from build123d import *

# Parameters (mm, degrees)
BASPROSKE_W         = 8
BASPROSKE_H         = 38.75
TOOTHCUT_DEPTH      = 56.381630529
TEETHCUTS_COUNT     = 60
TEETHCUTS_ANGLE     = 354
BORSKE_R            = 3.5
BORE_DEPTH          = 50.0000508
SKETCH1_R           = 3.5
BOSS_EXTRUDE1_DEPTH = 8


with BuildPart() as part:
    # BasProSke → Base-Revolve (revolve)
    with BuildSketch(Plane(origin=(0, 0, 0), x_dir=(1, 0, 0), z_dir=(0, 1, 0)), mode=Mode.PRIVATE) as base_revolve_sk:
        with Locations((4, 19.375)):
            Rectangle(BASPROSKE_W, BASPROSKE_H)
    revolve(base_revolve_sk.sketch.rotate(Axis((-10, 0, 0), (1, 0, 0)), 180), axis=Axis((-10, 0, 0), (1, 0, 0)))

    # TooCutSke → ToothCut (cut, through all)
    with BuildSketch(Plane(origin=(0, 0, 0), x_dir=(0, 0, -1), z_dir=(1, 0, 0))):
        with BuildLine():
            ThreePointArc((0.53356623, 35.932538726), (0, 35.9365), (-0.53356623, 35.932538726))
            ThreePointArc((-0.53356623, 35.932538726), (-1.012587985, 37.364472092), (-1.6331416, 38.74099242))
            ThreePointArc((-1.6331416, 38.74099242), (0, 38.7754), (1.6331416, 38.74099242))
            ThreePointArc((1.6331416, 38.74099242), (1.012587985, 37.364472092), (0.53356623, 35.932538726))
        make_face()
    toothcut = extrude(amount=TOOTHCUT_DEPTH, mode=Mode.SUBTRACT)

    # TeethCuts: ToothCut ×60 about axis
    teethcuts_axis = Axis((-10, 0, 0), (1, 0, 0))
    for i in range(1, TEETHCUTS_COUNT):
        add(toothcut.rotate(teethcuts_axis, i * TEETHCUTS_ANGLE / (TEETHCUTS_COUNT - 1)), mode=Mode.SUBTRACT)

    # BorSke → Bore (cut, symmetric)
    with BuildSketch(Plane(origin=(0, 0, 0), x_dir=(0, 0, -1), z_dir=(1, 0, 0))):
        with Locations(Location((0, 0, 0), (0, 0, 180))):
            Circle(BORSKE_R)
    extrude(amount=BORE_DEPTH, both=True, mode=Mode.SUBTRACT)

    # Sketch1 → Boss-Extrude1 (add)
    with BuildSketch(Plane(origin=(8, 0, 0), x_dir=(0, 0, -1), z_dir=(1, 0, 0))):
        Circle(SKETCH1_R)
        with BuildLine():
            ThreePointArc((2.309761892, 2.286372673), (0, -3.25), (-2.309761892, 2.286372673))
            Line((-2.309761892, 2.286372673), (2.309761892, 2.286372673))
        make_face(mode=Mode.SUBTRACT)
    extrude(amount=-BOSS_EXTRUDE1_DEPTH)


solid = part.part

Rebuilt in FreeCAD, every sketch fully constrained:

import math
import FreeCAD as App
import Part
import Sketcher

V = App.Vector
Q = App.Units.Quantity

doc = App.newDocument("Part")
body = doc.addObject("PartDesign::Body", "Body")

# Sketch on XZ plane
sketch1 = doc.addObject("Sketcher::SketchObject", "Sketch")
body.addObject(sketch1)
sketch1.AttachmentSupport = (doc.XZ_Plane, [""])
sketch1.MapMode = "FlatFace"
sketch1.addGeometry(Part.LineSegment(V(0, -39, 0), V(0, 0, 0)), False)
sketch1.addGeometry(Part.LineSegment(V(0, 0, 0), V(8, 0, 0)), False)
sketch1.addGeometry(Part.LineSegment(V(8, 0, 0), V(8, -39, 0)), False)
sketch1.addGeometry(Part.LineSegment(V(8, -39, 0), V(0, -39, 0)), False)
sketch1.addConstraint(Sketcher.Constraint("Coincident", 0, 2, 1, 1))
sketch1.addConstraint(Sketcher.Constraint("Coincident", 1, 2, 2, 1))
sketch1.addConstraint(Sketcher.Constraint("Coincident", 2, 2, 3, 1))
sketch1.addConstraint(Sketcher.Constraint("Coincident", 3, 2, 0, 1))
sketch1.addConstraint(Sketcher.Constraint("Vertical", 0))
sketch1.addConstraint(Sketcher.Constraint("Horizontal", 1))
sketch1.addConstraint(Sketcher.Constraint("Vertical", 2))
sketch1.addConstraint(Sketcher.Constraint("Horizontal", 3))
sketch1.addConstraint(Sketcher.Constraint("Coincident", 0, 2, -1, 1))
sketch1.addConstraint(Sketcher.Constraint("DistanceX", 1, 1, 1, 2, Q("8 mm")))
sketch1.addConstraint(Sketcher.Constraint("DistanceY", 0, 1, 0, 2, Q("38.75 mm")))
revolution = doc.addObject("PartDesign::Revolution", "Revolution")
body.addObject(revolution)
revolution.Profile = sketch1
revolution.ReferenceAxis = (sketch1, ["H_Axis"])
revolution.Angle = 360

# Sketch on YZ plane
sketch2 = doc.addObject("Sketcher::SketchObject", "Sketch001")
body.addObject(sketch2)
sketch2.AttachmentSupport = (doc.YZ_Plane, [""])
sketch2.MapMode = "FlatFace"
sketch2.addGeometry(Part.ArcOfCircle(Part.Circle(V(0, 0, 0), V(0, 0, 1), 35.9), math.radians(-0.85), math.radians(0.85)), False)
sketch2.addGeometry(Part.ArcOfCircle(Part.Circle(V(31.9, -15, 0), V(0, 0, 1), 15), math.radians(62.85), math.radians(74.39)), False)
sketch2.addGeometry(Part.ArcOfCircle(Part.Circle(V(0, 0, 0), V(0, 0, 1), 38.8), math.radians(-2.41), math.radians(2.41)), False)
sketch2.addGeometry(Part.ArcOfCircle(Part.Circle(V(31.9, 15, 0), V(0, 0, 1), 15), math.radians(-74.39), math.radians(-62.85)), False)
sketch2.addConstraint(Sketcher.Constraint("Coincident", 0, 1, 1, 2))
sketch2.addConstraint(Sketcher.Constraint("Coincident", 1, 1, 2, 1))
sketch2.addConstraint(Sketcher.Constraint("Coincident", 2, 2, 3, 2))
sketch2.addConstraint(Sketcher.Constraint("Coincident", 3, 1, 0, 2))
sketch2.addConstraint(Sketcher.Constraint("Coincident", 0, 3, -1, 1))
sketch2.addConstraint(Sketcher.Constraint("Coincident", 2, 3, -1, 1))
sketch2.addConstraint(Sketcher.Constraint("Equal", 1, 3))
sketch2.addConstraint(Sketcher.Constraint("Symmetric", 1, 3, 3, 3, -1))
sketch2.addConstraint(Sketcher.Constraint("Radius", 1, Q("15 mm")))
sketch2.addConstraint(Sketcher.Constraint("Radius", 2, Q("38.7754 mm")))
sketch2.addConstraint(Sketcher.Constraint("Radius", 0, Q("35.936496 mm")))
sketch2.addConstraint(Sketcher.Constraint("DistanceX", -1, 1, 1, 3, Q("31.895828 mm")))
sketch2.addConstraint(Sketcher.Constraint("DistanceY", 1, 3, -1, 1, Q("14.980191 mm")))
pocket1 = doc.addObject("PartDesign::Pocket", "Pocket")
body.addObject(pocket1)
pocket1.Profile = sketch2
pocket1.Type = "ThroughAll"
pocket1.Reversed = True
doc.recompute()

polarpattern = doc.addObject("PartDesign::PolarPattern", "PolarPattern")
body.addObject(polarpattern)
polarpattern.Originals = [pocket1]
polarpattern.Axis = (doc.X_Axis, [""])
polarpattern.Angle = 360
polarpattern.Occurrences = 60
body.Tip = polarpattern

# Sketch on YZ plane
sketch3 = doc.addObject("Sketcher::SketchObject", "Sketch002")
body.addObject(sketch3)
sketch3.AttachmentSupport = (doc.YZ_Plane, [""])
sketch3.MapMode = "FlatFace"
sketch3.addGeometry(Part.Circle(V(0, 0, 0), V(0, 0, 1), 3.5), False)
sketch3.addConstraint(Sketcher.Constraint("Coincident", 0, 3, -1, 1))
sketch3.addConstraint(Sketcher.Constraint("Diameter", 0, Q("7 mm")))
pocket2 = doc.addObject("PartDesign::Pocket", "Pocket001")
body.addObject(pocket2)
pocket2.Profile = sketch3
pocket2.Length = 100.000102
pocket2.Midplane = True

# Sketch on YZ plane
sketch4 = doc.addObject("Sketcher::SketchObject", "Sketch003")
body.addObject(sketch4)
sketch4.AttachmentSupport = (doc.YZ_Plane, [""])
sketch4.MapMode = "FlatFace"
sketch4.AttachmentOffset = App.Placement(V(0, 0, 8), App.Rotation())
sketch4.addGeometry(Part.Circle(V(0, 0, 0), V(0, 0, 1), 3.5), False)
sketch4.addGeometry(Part.LineSegment(V(2.3, 2.3, 0), V(2.3, -2.3, 0)), False)
sketch4.addGeometry(Part.ArcOfCircle(Part.Circle(V(0, 0, 0), V(0, 0, 1), 3.2), math.radians(45), math.radians(315)), False)
sketch4.addConstraint(Sketcher.Constraint("Coincident", 1, 1, 2, 1))
sketch4.addConstraint(Sketcher.Constraint("Coincident", 2, 2, 1, 2))
sketch4.addConstraint(Sketcher.Constraint("Vertical", 1))
sketch4.addConstraint(Sketcher.Constraint("Coincident", 0, 3, -1, 1))
sketch4.addConstraint(Sketcher.Constraint("Coincident", 2, 3, -1, 1))
sketch4.addConstraint(Sketcher.Constraint("Diameter", 0, Q("7 mm")))
sketch4.addConstraint(Sketcher.Constraint("Radius", 2, Q("3.25 mm")))
sketch4.addConstraint(Sketcher.Constraint("DistanceY", 1, 2, 1, 1, Q("4.619524 mm")))
pad1 = doc.addObject("PartDesign::Pad", "Pad")
body.addObject(pad1)
pad1.Profile = sketch4
pad1.Length = 8
pad1.Reversed = True

doc.recompute()
